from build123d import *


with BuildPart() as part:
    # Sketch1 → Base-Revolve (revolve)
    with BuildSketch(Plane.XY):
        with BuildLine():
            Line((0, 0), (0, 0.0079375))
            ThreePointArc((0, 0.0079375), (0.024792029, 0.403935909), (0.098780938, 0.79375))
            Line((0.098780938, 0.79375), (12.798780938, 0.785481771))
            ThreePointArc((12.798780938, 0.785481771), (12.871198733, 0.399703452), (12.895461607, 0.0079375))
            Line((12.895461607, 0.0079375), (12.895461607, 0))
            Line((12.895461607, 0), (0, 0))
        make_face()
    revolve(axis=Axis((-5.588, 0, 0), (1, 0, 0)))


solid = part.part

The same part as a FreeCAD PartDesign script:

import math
import FreeCAD as App
import Part
import Sketcher

V = App.Vector
Q = App.Units.Quantity

doc = App.newDocument("Part")
body = doc.addObject("PartDesign::Body", "Body")

# Sketch on XY plane
sketch1 = doc.addObject("Sketcher::SketchObject", "Sketch")
body.addObject(sketch1)
sketch1.AttachmentSupport = (doc.XY_Plane, [""])
sketch1.MapMode = "FlatFace"
sketch1.addGeometry(Part.LineSegment(V(0, 0.007938, 0), V(0, 0, 0)), False)
sketch1.addGeometry(Part.LineSegment(V(0, 0, 0), V(12.895462, 0, 0)), False)
sketch1.addGeometry(Part.LineSegment(V(12.895462, 0, 0), V(12.895462, 0.007938, 0)), False)
sketch1.addGeometry(Part.ArcOfCircle(Part.Circle(V(9.720462, 0.007937, 0), V(0, 0, 1), 3.175), math.radians(0), math.radians(14.175678)), False)
sketch1.addGeometry(Part.LineSegment(V(12.798781, 0.785482, 0), V(0.098781, 0.79375, 0)), False)
sketch1.addGeometry(Part.ArcOfCircle(Part.Circle(V(3.175, 0.007938, 0), V(0, 0, 1), 3.175), math.radians(165.670376), math.radians(180)), False)
sketch1.addConstraint(Sketcher.Constraint("Coincident", 0, 2, 1, 1))
sketch1.addConstraint(Sketcher.Constraint("Coincident", 1, 2, 2, 1))
sketch1.addConstraint(Sketcher.Constraint("Tangent", 2, 2, 3, 1))
sketch1.addConstraint(Sketcher.Constraint("Coincident", 3, 2, 4, 1))
sketch1.addConstraint(Sketcher.Constraint("Coincident", 4, 2, 5, 1))
sketch1.addConstraint(Sketcher.Constraint("Tangent", 5, 2, 0, 1))
sketch1.addConstraint(Sketcher.Constraint("Vertical", 0))
sketch1.addConstraint(Sketcher.Constraint("Horizontal", 1))
sketch1.addConstraint(Sketcher.Constraint("Vertical", 2))
sketch1.addConstraint(Sketcher.Constraint("Coincident", 0, 2, -1, 1))
sketch1.addConstraint(Sketcher.Constraint("Equal", 3, 5))
sketch1.addConstraint(Sketcher.Constraint("Horizontal", 3, 3, 5, 3))
sketch1.addConstraint(Sketcher.Constraint("Radius", 3, Q("0.125 in")))
sketch1.addConstraint(Sketcher.Constraint("Distance", 4, Q("0.5000001 in")))
sketch1.addConstraint(Sketcher.Constraint("DistanceY", -1, 1, 4, 2, Q("0.03125 in")))
sketch1.addConstraint(Sketcher.Constraint("DistanceX", 1, 1, 1, 2, Q("12.895462 mm")))
sketch1.addConstraint(Sketcher.Constraint("DistanceY", 0, 2, 0, 1, Q("0.007938 mm")))
revolution = doc.addObject("PartDesign::Revolution", "Revolution")
body.addObject(revolution)
revolution.Profile = sketch1
revolution.ReferenceAxis = (sketch1, ["H_Axis"])
revolution.Angle = 360

doc.recompute()
